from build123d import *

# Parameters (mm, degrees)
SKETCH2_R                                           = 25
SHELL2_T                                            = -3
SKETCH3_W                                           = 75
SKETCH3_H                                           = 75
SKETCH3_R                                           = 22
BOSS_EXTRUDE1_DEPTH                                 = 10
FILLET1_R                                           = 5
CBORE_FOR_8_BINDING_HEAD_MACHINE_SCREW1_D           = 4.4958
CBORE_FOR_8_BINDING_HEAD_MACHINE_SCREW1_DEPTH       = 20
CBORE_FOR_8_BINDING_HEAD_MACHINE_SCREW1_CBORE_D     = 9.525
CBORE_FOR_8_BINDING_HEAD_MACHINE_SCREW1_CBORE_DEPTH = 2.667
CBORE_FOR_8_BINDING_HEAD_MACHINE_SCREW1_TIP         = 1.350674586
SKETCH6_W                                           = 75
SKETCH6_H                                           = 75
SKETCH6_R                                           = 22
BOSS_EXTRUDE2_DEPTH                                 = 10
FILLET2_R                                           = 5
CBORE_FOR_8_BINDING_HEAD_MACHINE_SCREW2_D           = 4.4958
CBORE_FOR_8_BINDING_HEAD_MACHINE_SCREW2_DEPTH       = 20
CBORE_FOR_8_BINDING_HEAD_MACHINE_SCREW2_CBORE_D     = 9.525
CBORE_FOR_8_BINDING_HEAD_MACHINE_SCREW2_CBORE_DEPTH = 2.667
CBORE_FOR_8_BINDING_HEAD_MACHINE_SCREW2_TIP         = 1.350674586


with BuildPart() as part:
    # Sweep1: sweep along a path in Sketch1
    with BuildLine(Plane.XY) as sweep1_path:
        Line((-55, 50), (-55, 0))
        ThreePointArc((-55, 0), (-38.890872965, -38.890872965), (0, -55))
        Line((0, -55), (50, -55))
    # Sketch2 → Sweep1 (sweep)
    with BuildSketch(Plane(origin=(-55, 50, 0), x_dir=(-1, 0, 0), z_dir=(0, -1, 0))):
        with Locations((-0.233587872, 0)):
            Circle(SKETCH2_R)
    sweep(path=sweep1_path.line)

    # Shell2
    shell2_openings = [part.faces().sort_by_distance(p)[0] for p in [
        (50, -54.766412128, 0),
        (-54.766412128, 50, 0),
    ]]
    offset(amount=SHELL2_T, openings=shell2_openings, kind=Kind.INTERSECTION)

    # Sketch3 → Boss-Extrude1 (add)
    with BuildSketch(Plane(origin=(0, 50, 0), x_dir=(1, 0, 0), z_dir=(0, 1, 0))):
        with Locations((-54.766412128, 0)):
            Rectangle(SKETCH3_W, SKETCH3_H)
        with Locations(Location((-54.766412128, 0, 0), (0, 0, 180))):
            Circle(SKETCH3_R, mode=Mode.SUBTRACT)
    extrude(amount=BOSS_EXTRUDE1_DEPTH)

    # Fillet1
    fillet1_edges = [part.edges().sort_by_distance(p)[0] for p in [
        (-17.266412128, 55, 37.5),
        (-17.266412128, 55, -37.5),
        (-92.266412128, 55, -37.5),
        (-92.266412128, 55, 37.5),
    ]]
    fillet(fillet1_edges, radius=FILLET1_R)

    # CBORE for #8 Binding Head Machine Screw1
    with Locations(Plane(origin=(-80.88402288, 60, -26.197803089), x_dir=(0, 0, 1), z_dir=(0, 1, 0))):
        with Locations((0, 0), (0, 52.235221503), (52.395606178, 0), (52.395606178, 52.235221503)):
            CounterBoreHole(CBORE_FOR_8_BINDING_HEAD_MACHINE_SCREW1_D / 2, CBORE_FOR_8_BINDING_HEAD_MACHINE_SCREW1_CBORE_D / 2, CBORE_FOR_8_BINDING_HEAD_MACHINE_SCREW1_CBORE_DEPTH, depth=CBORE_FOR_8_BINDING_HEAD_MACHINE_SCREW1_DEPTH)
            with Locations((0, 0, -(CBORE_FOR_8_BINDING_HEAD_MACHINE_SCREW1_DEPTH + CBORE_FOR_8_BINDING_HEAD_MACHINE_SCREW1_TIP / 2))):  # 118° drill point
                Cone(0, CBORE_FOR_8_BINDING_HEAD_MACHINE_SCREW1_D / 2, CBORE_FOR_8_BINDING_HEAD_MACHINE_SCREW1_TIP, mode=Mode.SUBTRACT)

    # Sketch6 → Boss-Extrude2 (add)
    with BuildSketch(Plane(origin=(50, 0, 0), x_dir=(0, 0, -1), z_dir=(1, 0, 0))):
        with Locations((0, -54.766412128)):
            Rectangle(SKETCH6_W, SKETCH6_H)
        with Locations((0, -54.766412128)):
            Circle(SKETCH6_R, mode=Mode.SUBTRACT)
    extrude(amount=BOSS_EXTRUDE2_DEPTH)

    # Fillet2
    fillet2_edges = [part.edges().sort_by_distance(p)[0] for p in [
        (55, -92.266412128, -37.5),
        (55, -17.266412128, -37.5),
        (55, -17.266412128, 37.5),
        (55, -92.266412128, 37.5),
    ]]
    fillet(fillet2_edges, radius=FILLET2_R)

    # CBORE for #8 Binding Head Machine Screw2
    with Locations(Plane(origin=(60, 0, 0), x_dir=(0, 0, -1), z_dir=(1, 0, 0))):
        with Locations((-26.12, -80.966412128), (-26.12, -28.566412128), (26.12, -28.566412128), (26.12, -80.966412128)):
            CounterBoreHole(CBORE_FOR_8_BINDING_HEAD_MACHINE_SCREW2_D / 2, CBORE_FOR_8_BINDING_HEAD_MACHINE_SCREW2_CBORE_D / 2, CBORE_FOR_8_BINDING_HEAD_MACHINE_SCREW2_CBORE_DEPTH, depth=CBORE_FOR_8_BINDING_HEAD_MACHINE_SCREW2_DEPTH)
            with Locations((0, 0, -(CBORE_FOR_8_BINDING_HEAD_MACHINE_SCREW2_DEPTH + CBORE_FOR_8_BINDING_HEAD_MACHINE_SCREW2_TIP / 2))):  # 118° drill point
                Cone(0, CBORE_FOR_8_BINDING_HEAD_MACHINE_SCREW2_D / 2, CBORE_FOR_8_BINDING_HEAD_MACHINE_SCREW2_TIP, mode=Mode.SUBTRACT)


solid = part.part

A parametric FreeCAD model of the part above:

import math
import FreeCAD as App
import Part
import Sketcher

V = App.Vector


def edges_at(feature, points):
    """Names of the edges that pass closest to the given points."""
    edges = feature.Shape.Edges
    near = lambda p: min(range(len(edges)), key=lambda i: edges[i].distToShape(Part.Vertex(*p))[0])
    return sorted({f"Edge{near(p) + 1}" for p in points})


def faces_at(feature, points):
    """Names of the faces that lie closest to the given points."""
    faces = feature.Shape.Faces
    near = lambda p: min(range(len(faces)), key=lambda i: faces[i].distToShape(Part.Vertex(*p))[0])
    return sorted({f"Face{near(p) + 1}" for p in points})

doc = App.newDocument("Part")
body = doc.addObject("PartDesign::Body", "Body")

sketch1 = body.newObject("Sketcher::SketchObject", "Sketch")
sketch1.AttachmentSupport = (doc.getObject("XZ_Plane"), [""])
sketch1.MapMode = "FlatFace"
sketch1.AttachmentOffset = App.Placement(V(0, 0, -50), App.Rotation())
sketch1.addGeometry(Part.Circle(V(-55, 0, 0), V(0, 0, 1), 25), False)
sketch1.addConstraint(Sketcher.Constraint("PointOnObject", 0, 3, -1))
sketch1.addConstraint(Sketcher.Constraint("Diameter", 0, 50.0))
sketch1.addConstraint(Sketcher.Constraint("DistanceX", 0, 3, -1, 1, 54.766412))

sketch2 = body.newObject("Sketcher::SketchObject", "Sketch001")
sketch2.AttachmentSupport = (doc.getObject("XY_Plane"), [""])
sketch2.MapMode = "FlatFace"
sketch2.addGeometry(Part.LineSegment(V(-55, 50, 0), V(-55, 0, 0)), False)
sketch2.addGeometry(Part.ArcOfCircle(Part.Circle(V(0, 0, 0), V(0, 0, 1), 55), math.radians(-180), math.radians(-90)), False)
sketch2.addGeometry(Part.LineSegment(V(0, -55, 0), V(50, -55, 0)), False)
sketch2.addConstraint(Sketcher.Constraint("Tangent", 0, 2, 1, 1))
sketch2.addConstraint(Sketcher.Constraint("Tangent", 1, 2, 2, 1))
sketch2.addConstraint(Sketcher.Constraint("Vertical", 0))
sketch2.addConstraint(Sketcher.Constraint("Horizontal", 2))
sketch2.addConstraint(Sketcher.Constraint("Coincident", 1, 3, -1, 1))
sketch2.addConstraint(Sketcher.Constraint("Equal", 2, 0))
sketch2.addConstraint(Sketcher.Constraint("Radius", 1, 55.0))
sketch2.addConstraint(Sketcher.Constraint("DistanceX", 2, 1, 2, 2, 50.0))
doc.recompute()

additivepipe = body.newObject("PartDesign::AdditivePipe", "AdditivePipe")
additivepipe.Profile = sketch1
additivepipe.Spine = (sketch2, ["Edge1", "Edge2", "Edge3"])
doc.recompute()

thickness = body.newObject("PartDesign::Thickness", "Thickness")
thickness.Base = (additivepipe, faces_at(additivepipe, [(50, -54.766, 0), (-54.766, 50, 0)]))
thickness.Value = 3
thickness.Reversed = True
thickness.Join = "Intersection"

sketch3 = body.newObject("Sketcher::SketchObject", "Sketch002")
sketch3.AttachmentSupport = (doc.getObject("XZ_Plane"), [""])
sketch3.MapMode = "FlatFace"
sketch3.AttachmentOffset = App.Placement(V(0, 0, -50), App.Rotation())
sketch3.addGeometry(Part.LineSegment(V(-92, -38, 0), V(-92, 38, 0)), False)
sketch3.addGeometry(Part.LineSegment(V(-92, 38, 0), V(-17, 38, 0)), False)
sketch3.addGeometry(Part.LineSegment(V(-17, 38, 0), V(-17, -38, 0)), False)
sketch3.addGeometry(Part.LineSegment(V(-17, -38, 0), V(-92, -38, 0)), False)
sketch3.addGeometry(Part.Circle(V(-55, 0, 0), V(0, 0, 1), 22), False)
sketch3.addConstraint(Sketcher.Constraint("Coincident", 0, 2, 1, 1))
sketch3.addConstraint(Sketcher.Constraint("Coincident", 1, 2, 2, 1))
sketch3.addConstraint(Sketcher.Constraint("Coincident", 2, 2, 3, 1))
sketch3.addConstraint(Sketcher.Constraint("Coincident", 3, 2, 0, 1))
sketch3.addConstraint(Sketcher.Constraint("Vertical", 0))
sketch3.addConstraint(Sketcher.Constraint("Horizontal", 1))
sketch3.addConstraint(Sketcher.Constraint("Vertical", 2))
sketch3.addConstraint(Sketcher.Constraint("Horizontal", 3))
sketch3.addConstraint(Sketcher.Constraint("PointOnObject", 4, 3, -1))
sketch3.addConstraint(Sketcher.Constraint("Equal", 3, 0))
sketch3.addConstraint(Sketcher.Constraint("Diameter", 4, 44.0))
sketch3.addConstraint(Sketcher.Constraint("DistanceX", 1, 1, 1, 2, 75.0))
sketch3.addConstraint(Sketcher.Constraint("DistanceY", -1, 1, 0, 2, 37.5))
sketch3.addConstraint(Sketcher.Constraint("DistanceX", 0, 2, 4, 3, 37.5))
sketch3.addConstraint(Sketcher.Constraint("DistanceX", 4, 3, -1, 1, 54.766412))
pad1 = body.newObject("PartDesign::Pad", "Pad")
pad1.Profile = sketch3
pad1.Length = 10
pad1.Reversed = True
doc.recompute()

fillet = body.newObject("PartDesign::Fillet", "Fillet")
fillet.Base = (pad1, edges_at(pad1, [
    (-17.266, 55, 37.5),
    (-17.266, 55, -37.5),
    (-92.266, 55, -37.5),
    (-92.266, 55, 37.5),
]))
fillet.Radius = 5

sketch4 = body.newObject("Sketcher::SketchObject", "Sketch003")
sketch4.AttachmentSupport = (doc.getObject("XZ_Plane"), [""])
sketch4.MapMode = "FlatFace"
sketch4.AttachmentOffset = App.Placement(V(0, 0, -60), App.Rotation())
sketch4.addGeometry(Part.Circle(V(-80.9, -26.2, 0), V(0, 0, 1), 2.2), False)
sketch4.addGeometry(Part.Circle(V(-28.6, -26.2, 0), V(0, 0, 1), 2.2), False)
sketch4.addGeometry(Part.Circle(V(-80.9, 26.2, 0), V(0, 0, 1), 2.2), False)
sketch4.addGeometry(Part.Circle(V(-28.6, 26.2, 0), V(0, 0, 1), 2.2), False)
sketch4.addConstraint(Sketcher.Constraint("Equal", 0, 1))
sketch4.addConstraint(Sketcher.Constraint("Equal", 1, 2))
sketch4.addConstraint(Sketcher.Constraint("Equal", 2, 3))
sketch4.addConstraint(Sketcher.Constraint("Symmetric", 0, 3, 2, 3, -1))
sketch4.addConstraint(Sketcher.Constraint("Symmetric", 1, 3, 3, 3, -1))
sketch4.addConstraint(Sketcher.Constraint("Horizontal", 0, 3, 1, 3))
sketch4.addConstraint(Sketcher.Constraint("Diameter", 0, 4.4958))
sketch4.addConstraint(Sketcher.Constraint("DistanceX", 1, 3, -1, 1, 28.648801))
sketch4.addConstraint(Sketcher.Constraint("DistanceX", 0, 3, 1, 3, 52.235222))
sketch4.addConstraint(Sketcher.Constraint("DistanceY", 0, 3, -1, 1, 26.197803))
doc.recompute()
hole = body.newObject("PartDesign::Hole", "Hole")
hole.Profile = sketch4
hole.ThreadType = "None"
hole.Diameter = 4.4958
hole.DepthType = "Dimension"
hole.Depth = 20
hole.DrillPoint = "Angled"
hole.DrillPointAngle = 118
hole.HoleCutType = "Counterbore"
hole.HoleCutDiameter = 9.525
hole.HoleCutDepth = 2.667
hole.Reversed = True

sketch5 = body.newObject("Sketcher::SketchObject", "Sketch004")
sketch5.AttachmentSupport = (doc.getObject("YZ_Plane"), [""])
sketch5.MapMode = "FlatFace"
sketch5.AttachmentOffset = App.Placement(V(0, 0, 50), App.Rotation())
sketch5.addGeometry(Part.LineSegment(V(-17, 38, 0), V(-92, 38, 0)), False)
sketch5.addGeometry(Part.LineSegment(V(-92, 38, 0), V(-92, -38, 0)), False)
sketch5.addGeometry(Part.LineSegment(V(-92, -38, 0), V(-17, -38, 0)), False)
sketch5.addGeometry(Part.LineSegment(V(-17, -38, 0), V(-17, 38, 0)), False)
sketch5.addGeometry(Part.Circle(V(-55, 0, 0), V(0, 0, 1), 22), False)
sketch5.addConstraint(Sketcher.Constraint("Coincident", 0, 2, 1, 1))
sketch5.addConstraint(Sketcher.Constraint("Coincident", 1, 2, 2, 1))
sketch5.addConstraint(Sketcher.Constraint("Coincident", 2, 2, 3, 1))
sketch5.addConstraint(Sketcher.Constraint("Coincident", 3, 2, 0, 1))
sketch5.addConstraint(Sketcher.Constraint("Horizontal", 0))
sketch5.addConstraint(Sketcher.Constraint("Vertical", 1))
sketch5.addConstraint(Sketcher.Constraint("Horizontal", 2))
sketch5.addConstraint(Sketcher.Constraint("Vertical", 3))
sketch5.addConstraint(Sketcher.Constraint("PointOnObject", 4, 3, -1))
sketch5.addConstraint(Sketcher.Constraint("Equal", 2, 1))
sketch5.addConstraint(Sketcher.Constraint("Diameter", 4, 44.0))
sketch5.addConstraint(Sketcher.Constraint("DistanceX", 0, 2, 0, 1, 75.0))
sketch5.addConstraint(Sketcher.Constraint("DistanceY", -1, 1, 0, 2, 37.5))
sketch5.addConstraint(Sketcher.Constraint("DistanceX", 0, 2, 4, 3, 37.5))
sketch5.addConstraint(Sketcher.Constraint("DistanceX", 4, 3, -1, 1, 54.766412))
pad2 = body.newObject("PartDesign::Pad", "Pad001")
pad2.Profile = sketch5
pad2.Length = 10
doc.recompute()

fillet2 = body.newObject("PartDesign::Fillet", "Fillet001")
fillet2.Base = (pad2, edges_at(pad2, [
    (55, -92.266, -37.5),
    (55, -17.266, -37.5),
    (55, -17.266, 37.5),
    (55, -92.266, 37.5),
]))
fillet2.Radius = 5

sketch6 = body.newObject("Sketcher::SketchObject", "Sketch005")
sketch6.AttachmentSupport = (doc.getObject("YZ_Plane"), [""])
sketch6.MapMode = "FlatFace"
sketch6.AttachmentOffset = App.Placement(V(0, 0, 60), App.Rotation())
sketch6.addGeometry(Part.Circle(V(-81, 26.1, 0), V(0, 0, 1), 2.2), False)
sketch6.addGeometry(Part.Circle(V(-28.6, 26.1, 0), V(0, 0, 1), 2.2), False)
sketch6.addGeometry(Part.Circle(V(-28.6, -26.1, 0), V(0, 0, 1), 2.2), False)
sketch6.addGeometry(Part.Circle(V(-81, -26.1, 0), V(0, 0, 1), 2.2), False)
sketch6.addConstraint(Sketcher.Constraint("Equal", 0, 1))
sketch6.addConstraint(Sketcher.Constraint("Equal", 1, 2))
sketch6.addConstraint(Sketcher.Constraint("Equal", 2, 3))
sketch6.addConstraint(Sketcher.Constraint("Symmetric", 1, 3, 2, 3, -1))
sketch6.addConstraint(Sketcher.Constraint("Symmetric", 0, 3, 3, 3, -1))
sketch6.addConstraint(Sketcher.Constraint("Horizontal", 0, 3, 1, 3))
sketch6.addConstraint(Sketcher.Constraint("Diameter", 0, 4.4958))
sketch6.addConstraint(Sketcher.Constraint("DistanceX", 0, 3, 1, 3, 52.4))
sketch6.addConstraint(Sketcher.Constraint("DistanceY", -1, 1, 0, 3, 26.12))
sketch6.addConstraint(Sketcher.Constraint("DistanceX", 0, 3, -1, 1, 80.966412))
doc.recompute()
hole2 = body.newObject("PartDesign::Hole", "Hole001")
hole2.Profile = sketch6
hole2.ThreadType = "None"
hole2.Diameter = 4.4958
hole2.DepthType = "Dimension"
hole2.Depth = 20
hole2.DrillPoint = "Angled"
hole2.DrillPointAngle = 118
hole2.HoleCutType = "Counterbore"
hole2.HoleCutDiameter = 9.525
hole2.HoleCutDepth = 2.667

doc.recompute()
